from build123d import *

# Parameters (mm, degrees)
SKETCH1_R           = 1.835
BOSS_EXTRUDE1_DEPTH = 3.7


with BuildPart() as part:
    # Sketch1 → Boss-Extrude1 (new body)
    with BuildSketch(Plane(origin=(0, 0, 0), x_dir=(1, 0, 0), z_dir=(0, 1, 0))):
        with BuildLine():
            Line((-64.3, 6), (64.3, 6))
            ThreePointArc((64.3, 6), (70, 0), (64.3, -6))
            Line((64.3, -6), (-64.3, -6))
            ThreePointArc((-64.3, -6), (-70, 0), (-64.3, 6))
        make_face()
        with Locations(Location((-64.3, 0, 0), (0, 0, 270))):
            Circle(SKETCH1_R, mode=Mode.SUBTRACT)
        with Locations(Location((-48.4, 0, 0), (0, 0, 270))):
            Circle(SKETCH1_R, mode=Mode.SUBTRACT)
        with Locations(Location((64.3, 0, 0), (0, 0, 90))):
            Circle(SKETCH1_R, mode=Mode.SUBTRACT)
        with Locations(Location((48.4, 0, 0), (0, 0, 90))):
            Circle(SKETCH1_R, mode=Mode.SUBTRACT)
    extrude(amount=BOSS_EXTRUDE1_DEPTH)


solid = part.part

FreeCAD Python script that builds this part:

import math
import FreeCAD as App
import Part
import Sketcher

doc = App.newDocument("Part")
body = doc.addObject("PartDesign::Body", "Body")

# Sketch on XZ plane
sketch1 = body.newObject("Sketcher::SketchObject", "Sketch")
sketch1.AttachmentSupport = (doc.getObject("XZ_Plane"), [""])
sketch1.MapMode = "FlatFace"
sketch1.addGeometry(Part.LineSegment(App.Vector(64.3, -6, 0), App.Vector(-64.3, -6, 0)), False)
sketch1.addGeometry(Part.ArcOfCircle(Part.Circle(App.Vector(-64, 0, 0), App.Vector(0, 0, 1), 6), math.radians(93), math.radians(267)), False)
sketch1.addGeometry(Part.LineSegment(App.Vector(-64.3, 6, 0), App.Vector(64.3, 6, 0)), False)
sketch1.addGeometry(Part.ArcOfCircle(Part.Circle(App.Vector(64, 0, 0), App.Vector(0, 0, 1), 6), math.radians(-87), math.radians(87)), False)
sketch1.addGeometry(Part.Circle(App.Vector(64.3, 0, 0), App.Vector(0, 0, 1), 1.8), False)
sketch1.addGeometry(Part.Circle(App.Vector(48.4, 0, 0), App.Vector(0, 0, 1), 1.8), False)
sketch1.addGeometry(Part.Circle(App.Vector(-48.4, 0, 0), App.Vector(0, 0, 1), 1.8), False)
sketch1.addGeometry(Part.Circle(App.Vector(-64.3, 0, 0), App.Vector(0, 0, 1), 1.8), False)
sketch1.addConstraint(Sketcher.Constraint("Coincident", 0, 2, 1, 2))
sketch1.addConstraint(Sketcher.Constraint("Coincident", 1, 1, 2, 1))
sketch1.addConstraint(Sketcher.Constraint("Coincident", 2, 2, 3, 2))
sketch1.addConstraint(Sketcher.Constraint("Coincident", 3, 1, 0, 1))
sketch1.addConstraint(Sketcher.Constraint("Horizontal", 0))
sketch1.addConstraint(Sketcher.Constraint("Horizontal", 2))
sketch1.addConstraint(Sketcher.Constraint("Equal", 1, 3))
sketch1.addConstraint(Sketcher.Constraint("Equal", 4, 5))
sketch1.addConstraint(Sketcher.Constraint("Equal", 5, 6))
sketch1.addConstraint(Sketcher.Constraint("Equal", 6, 7))
sketch1.addConstraint(Sketcher.Constraint("Symmetric", 1, 3, 3, 3, -1, 1))
sketch1.addConstraint(Sketcher.Constraint("Symmetric", 5, 3, 6, 3, -1, 1))
sketch1.addConstraint(Sketcher.Constraint("Symmetric", 4, 3, 7, 3, -1, 1))
sketch1.addConstraint(Sketcher.Constraint("Symmetric", 0, 2, 1, 1, -1))
sketch1.addConstraint(Sketcher.Constraint("PointOnObject", 4, 3, -1))
sketch1.addConstraint(Sketcher.Constraint("PointOnObject", 5, 3, -1))
sketch1.addConstraint(Sketcher.Constraint("Vertical", 7, 3, 0, 2))
sketch1.addConstraint(Sketcher.Constraint("Diameter", 4, 3.67))
sketch1.addConstraint(Sketcher.Constraint("DistanceX", 0, 2, 0, 1, 128.6))
sketch1.addConstraint(Sketcher.Constraint("DistanceY", 0, 2, -1, 1, 6.0))
sketch1.addConstraint(Sketcher.Constraint("DistanceX", -1, 1, 5, 3, 48.4))
sketch1.addConstraint(Sketcher.Constraint("Radius", 1, 6.007895))
pad1 = body.newObject("PartDesign::Pad", "Pad")
pad1.Profile = sketch1
pad1.Length = 3.7
pad1.Reversed = True

doc.recompute()
